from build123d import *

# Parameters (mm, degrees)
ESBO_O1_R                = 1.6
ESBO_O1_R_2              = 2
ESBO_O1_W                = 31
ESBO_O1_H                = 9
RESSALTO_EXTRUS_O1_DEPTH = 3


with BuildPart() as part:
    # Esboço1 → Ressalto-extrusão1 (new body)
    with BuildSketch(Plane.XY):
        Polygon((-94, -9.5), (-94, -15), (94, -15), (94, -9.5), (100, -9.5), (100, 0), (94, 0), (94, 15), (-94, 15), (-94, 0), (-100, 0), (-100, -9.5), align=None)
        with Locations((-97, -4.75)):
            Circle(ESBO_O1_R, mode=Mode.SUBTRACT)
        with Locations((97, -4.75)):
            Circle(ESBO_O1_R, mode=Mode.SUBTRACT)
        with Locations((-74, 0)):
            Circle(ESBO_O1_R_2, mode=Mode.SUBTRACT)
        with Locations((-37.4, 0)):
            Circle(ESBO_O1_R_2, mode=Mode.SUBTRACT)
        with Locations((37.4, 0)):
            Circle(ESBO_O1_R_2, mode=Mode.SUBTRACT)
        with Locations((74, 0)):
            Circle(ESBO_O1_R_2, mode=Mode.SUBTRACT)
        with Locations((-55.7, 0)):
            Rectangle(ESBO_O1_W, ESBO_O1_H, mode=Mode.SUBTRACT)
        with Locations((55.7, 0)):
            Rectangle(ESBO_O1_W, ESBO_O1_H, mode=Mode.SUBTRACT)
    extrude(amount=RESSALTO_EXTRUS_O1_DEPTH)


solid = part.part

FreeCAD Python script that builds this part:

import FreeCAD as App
import Part
import Sketcher

V = App.Vector
Q = App.Units.Quantity


def add_polygon(sketch, points):
    """Adds a closed chain of lines whose ends are joined by coincident constraints."""
    first, n = sketch.GeometryCount, len(points)
    for a, b in zip(points, points[1:] + points[:1]):
        sketch.addGeometry(Part.LineSegment(App.Vector(*a, 0), App.Vector(*b, 0)), False)
    for i in range(n):
        sketch.addConstraint(Sketcher.Constraint("Coincident", first + i, 2, first + (i + 1) % n, 1))

doc = App.newDocument("Part")
body = doc.addObject("PartDesign::Body", "Body")

sketch1 = doc.addObject("Sketcher::SketchObject", "Sketch")
body.addObject(sketch1)
sketch1.AttachmentSupport = (doc.XY_Plane, [""])
sketch1.MapMode = "FlatFace"
add_polygon(sketch1, [(-94, -9.5), (-94, -15), (94, -15), (94, -9.5), (100, -9.5), (100, 0), (94, 0), (94, 15), (-94, 15), (-94, 0), (-100, 0), (-100, -9.5)])
sketch1.addGeometry(Part.Circle(V(-97, -4.8, 0), V(0, 0, 1), 1.6), False)
sketch1.addGeometry(Part.Circle(V(97, -4.8, 0), V(0, 0, 1), 1.6), False)
sketch1.addGeometry(Part.Circle(V(-74, 0, 0), V(0, 0, 1), 2), False)
add_polygon(sketch1, [(-40.2, -4.5), (-71.2, -4.5), (-71.2, 4.5), (-40.2, 4.5)])
sketch1.addGeometry(Part.Circle(V(-37.4, 0, 0), V(0, 0, 1), 2), False)
sketch1.addGeometry(Part.Circle(V(37.4, 0, 0), V(0, 0, 1), 2), False)
add_polygon(sketch1, [(71.2, -4.5), (40.2, -4.5), (40.2, 4.5), (71.2, 4.5)])
sketch1.addGeometry(Part.Circle(V(74, 0, 0), V(0, 0, 1), 2), False)
sketch1.addConstraint([
    Sketcher.Constraint("Vertical", 0),
    Sketcher.Constraint("Horizontal", 1),
    Sketcher.Constraint("Vertical", 2),
    Sketcher.Constraint("Horizontal", 3),
    Sketcher.Constraint("Vertical", 4),
    Sketcher.Constraint("Horizontal", 5),
    Sketcher.Constraint("Vertical", 6),
    Sketcher.Constraint("Horizontal", 7),
    Sketcher.Constraint("Vertical", 8),
    Sketcher.Constraint("Horizontal", 9),
    Sketcher.Constraint("Vertical", 10),
    Sketcher.Constraint("Horizontal", 11),
    Sketcher.Constraint("Horizontal", 15),
    Sketcher.Constraint("Vertical", 16),
    Sketcher.Constraint("Horizontal", 17),
    Sketcher.Constraint("Vertical", 18),
    Sketcher.Constraint("Horizontal", 21),
    Sketcher.Constraint("Vertical", 22),
    Sketcher.Constraint("Horizontal", 23),
    Sketcher.Constraint("Vertical", 24),
    Sketcher.Constraint("Equal", 12, 13),
    Sketcher.Constraint("Equal", 14, 19),
    Sketcher.Constraint("Equal", 19, 20),
    Sketcher.Constraint("Equal", 20, 25),
    Sketcher.Constraint("Symmetric", 19, 3, 20, 3, -1, 1),
    Sketcher.Constraint("Symmetric", 14, 3, 25, 3, -1, 1),
    Sketcher.Constraint("Symmetric", 0, 2, 6, 2, -1, 1),
    Sketcher.Constraint("Symmetric", 5, 2, 8, 2, -1, 1),
    Sketcher.Constraint("Symmetric", 17, 2, 21, 2, -1, 1),
    Sketcher.Constraint("Symmetric", 15, 2, 23, 2, -1, 1),
    Sketcher.Constraint("Symmetric", 12, 3, 13, 3, -2),
    Sketcher.Constraint("Symmetric", 4, 2, 9, 2, -2),
    Sketcher.Constraint("Symmetric", 2, 2, 11, 2, -2),
    Sketcher.Constraint("PointOnObject", 14, 3, -1),
    Sketcher.Constraint("PointOnObject", 19, 3, -1),
    Sketcher.Constraint("Horizontal", 18, 2, 21, 2),
    Sketcher.Constraint("Diameter", 14, Q("4 mm")),
    Sketcher.Constraint("Diameter", 12, Q("3.2 mm")),
    Sketcher.Constraint("DistanceX", 1, 1, 1, 2, Q("188 mm")),
    Sketcher.Constraint("DistanceX", 3, 1, 3, 2, Q("6 mm")),
    Sketcher.Constraint("DistanceX", 15, 2, 15, 1, Q("31 mm")),
    Sketcher.Constraint("DistanceY", 6, 1, 6, 2, Q("15 mm")),
    Sketcher.Constraint("DistanceY", 16, 1, 16, 2, Q("9 mm")),
    Sketcher.Constraint("DistanceY", 0, 2, 0, 1, Q("5.5 mm")),
    Sketcher.Constraint("DistanceX", 12, 3, -1, 1, Q("97 mm")),
    Sketcher.Constraint("DistanceX", 14, 3, -1, 1, Q("74 mm")),
    Sketcher.Constraint("DistanceX", 19, 3, -1, 1, Q("37.4 mm")),
    Sketcher.Constraint("DistanceX", 15, 2, -1, 1, Q("71.2 mm")),
    Sketcher.Constraint("DistanceY", 12, 3, -1, 1, Q("4.75 mm")),
])
pad1 = doc.addObject("PartDesign::Pad", "Pad")
body.addObject(pad1)
pad1.Profile = sketch1
pad1.Length = 3

doc.recompute()
